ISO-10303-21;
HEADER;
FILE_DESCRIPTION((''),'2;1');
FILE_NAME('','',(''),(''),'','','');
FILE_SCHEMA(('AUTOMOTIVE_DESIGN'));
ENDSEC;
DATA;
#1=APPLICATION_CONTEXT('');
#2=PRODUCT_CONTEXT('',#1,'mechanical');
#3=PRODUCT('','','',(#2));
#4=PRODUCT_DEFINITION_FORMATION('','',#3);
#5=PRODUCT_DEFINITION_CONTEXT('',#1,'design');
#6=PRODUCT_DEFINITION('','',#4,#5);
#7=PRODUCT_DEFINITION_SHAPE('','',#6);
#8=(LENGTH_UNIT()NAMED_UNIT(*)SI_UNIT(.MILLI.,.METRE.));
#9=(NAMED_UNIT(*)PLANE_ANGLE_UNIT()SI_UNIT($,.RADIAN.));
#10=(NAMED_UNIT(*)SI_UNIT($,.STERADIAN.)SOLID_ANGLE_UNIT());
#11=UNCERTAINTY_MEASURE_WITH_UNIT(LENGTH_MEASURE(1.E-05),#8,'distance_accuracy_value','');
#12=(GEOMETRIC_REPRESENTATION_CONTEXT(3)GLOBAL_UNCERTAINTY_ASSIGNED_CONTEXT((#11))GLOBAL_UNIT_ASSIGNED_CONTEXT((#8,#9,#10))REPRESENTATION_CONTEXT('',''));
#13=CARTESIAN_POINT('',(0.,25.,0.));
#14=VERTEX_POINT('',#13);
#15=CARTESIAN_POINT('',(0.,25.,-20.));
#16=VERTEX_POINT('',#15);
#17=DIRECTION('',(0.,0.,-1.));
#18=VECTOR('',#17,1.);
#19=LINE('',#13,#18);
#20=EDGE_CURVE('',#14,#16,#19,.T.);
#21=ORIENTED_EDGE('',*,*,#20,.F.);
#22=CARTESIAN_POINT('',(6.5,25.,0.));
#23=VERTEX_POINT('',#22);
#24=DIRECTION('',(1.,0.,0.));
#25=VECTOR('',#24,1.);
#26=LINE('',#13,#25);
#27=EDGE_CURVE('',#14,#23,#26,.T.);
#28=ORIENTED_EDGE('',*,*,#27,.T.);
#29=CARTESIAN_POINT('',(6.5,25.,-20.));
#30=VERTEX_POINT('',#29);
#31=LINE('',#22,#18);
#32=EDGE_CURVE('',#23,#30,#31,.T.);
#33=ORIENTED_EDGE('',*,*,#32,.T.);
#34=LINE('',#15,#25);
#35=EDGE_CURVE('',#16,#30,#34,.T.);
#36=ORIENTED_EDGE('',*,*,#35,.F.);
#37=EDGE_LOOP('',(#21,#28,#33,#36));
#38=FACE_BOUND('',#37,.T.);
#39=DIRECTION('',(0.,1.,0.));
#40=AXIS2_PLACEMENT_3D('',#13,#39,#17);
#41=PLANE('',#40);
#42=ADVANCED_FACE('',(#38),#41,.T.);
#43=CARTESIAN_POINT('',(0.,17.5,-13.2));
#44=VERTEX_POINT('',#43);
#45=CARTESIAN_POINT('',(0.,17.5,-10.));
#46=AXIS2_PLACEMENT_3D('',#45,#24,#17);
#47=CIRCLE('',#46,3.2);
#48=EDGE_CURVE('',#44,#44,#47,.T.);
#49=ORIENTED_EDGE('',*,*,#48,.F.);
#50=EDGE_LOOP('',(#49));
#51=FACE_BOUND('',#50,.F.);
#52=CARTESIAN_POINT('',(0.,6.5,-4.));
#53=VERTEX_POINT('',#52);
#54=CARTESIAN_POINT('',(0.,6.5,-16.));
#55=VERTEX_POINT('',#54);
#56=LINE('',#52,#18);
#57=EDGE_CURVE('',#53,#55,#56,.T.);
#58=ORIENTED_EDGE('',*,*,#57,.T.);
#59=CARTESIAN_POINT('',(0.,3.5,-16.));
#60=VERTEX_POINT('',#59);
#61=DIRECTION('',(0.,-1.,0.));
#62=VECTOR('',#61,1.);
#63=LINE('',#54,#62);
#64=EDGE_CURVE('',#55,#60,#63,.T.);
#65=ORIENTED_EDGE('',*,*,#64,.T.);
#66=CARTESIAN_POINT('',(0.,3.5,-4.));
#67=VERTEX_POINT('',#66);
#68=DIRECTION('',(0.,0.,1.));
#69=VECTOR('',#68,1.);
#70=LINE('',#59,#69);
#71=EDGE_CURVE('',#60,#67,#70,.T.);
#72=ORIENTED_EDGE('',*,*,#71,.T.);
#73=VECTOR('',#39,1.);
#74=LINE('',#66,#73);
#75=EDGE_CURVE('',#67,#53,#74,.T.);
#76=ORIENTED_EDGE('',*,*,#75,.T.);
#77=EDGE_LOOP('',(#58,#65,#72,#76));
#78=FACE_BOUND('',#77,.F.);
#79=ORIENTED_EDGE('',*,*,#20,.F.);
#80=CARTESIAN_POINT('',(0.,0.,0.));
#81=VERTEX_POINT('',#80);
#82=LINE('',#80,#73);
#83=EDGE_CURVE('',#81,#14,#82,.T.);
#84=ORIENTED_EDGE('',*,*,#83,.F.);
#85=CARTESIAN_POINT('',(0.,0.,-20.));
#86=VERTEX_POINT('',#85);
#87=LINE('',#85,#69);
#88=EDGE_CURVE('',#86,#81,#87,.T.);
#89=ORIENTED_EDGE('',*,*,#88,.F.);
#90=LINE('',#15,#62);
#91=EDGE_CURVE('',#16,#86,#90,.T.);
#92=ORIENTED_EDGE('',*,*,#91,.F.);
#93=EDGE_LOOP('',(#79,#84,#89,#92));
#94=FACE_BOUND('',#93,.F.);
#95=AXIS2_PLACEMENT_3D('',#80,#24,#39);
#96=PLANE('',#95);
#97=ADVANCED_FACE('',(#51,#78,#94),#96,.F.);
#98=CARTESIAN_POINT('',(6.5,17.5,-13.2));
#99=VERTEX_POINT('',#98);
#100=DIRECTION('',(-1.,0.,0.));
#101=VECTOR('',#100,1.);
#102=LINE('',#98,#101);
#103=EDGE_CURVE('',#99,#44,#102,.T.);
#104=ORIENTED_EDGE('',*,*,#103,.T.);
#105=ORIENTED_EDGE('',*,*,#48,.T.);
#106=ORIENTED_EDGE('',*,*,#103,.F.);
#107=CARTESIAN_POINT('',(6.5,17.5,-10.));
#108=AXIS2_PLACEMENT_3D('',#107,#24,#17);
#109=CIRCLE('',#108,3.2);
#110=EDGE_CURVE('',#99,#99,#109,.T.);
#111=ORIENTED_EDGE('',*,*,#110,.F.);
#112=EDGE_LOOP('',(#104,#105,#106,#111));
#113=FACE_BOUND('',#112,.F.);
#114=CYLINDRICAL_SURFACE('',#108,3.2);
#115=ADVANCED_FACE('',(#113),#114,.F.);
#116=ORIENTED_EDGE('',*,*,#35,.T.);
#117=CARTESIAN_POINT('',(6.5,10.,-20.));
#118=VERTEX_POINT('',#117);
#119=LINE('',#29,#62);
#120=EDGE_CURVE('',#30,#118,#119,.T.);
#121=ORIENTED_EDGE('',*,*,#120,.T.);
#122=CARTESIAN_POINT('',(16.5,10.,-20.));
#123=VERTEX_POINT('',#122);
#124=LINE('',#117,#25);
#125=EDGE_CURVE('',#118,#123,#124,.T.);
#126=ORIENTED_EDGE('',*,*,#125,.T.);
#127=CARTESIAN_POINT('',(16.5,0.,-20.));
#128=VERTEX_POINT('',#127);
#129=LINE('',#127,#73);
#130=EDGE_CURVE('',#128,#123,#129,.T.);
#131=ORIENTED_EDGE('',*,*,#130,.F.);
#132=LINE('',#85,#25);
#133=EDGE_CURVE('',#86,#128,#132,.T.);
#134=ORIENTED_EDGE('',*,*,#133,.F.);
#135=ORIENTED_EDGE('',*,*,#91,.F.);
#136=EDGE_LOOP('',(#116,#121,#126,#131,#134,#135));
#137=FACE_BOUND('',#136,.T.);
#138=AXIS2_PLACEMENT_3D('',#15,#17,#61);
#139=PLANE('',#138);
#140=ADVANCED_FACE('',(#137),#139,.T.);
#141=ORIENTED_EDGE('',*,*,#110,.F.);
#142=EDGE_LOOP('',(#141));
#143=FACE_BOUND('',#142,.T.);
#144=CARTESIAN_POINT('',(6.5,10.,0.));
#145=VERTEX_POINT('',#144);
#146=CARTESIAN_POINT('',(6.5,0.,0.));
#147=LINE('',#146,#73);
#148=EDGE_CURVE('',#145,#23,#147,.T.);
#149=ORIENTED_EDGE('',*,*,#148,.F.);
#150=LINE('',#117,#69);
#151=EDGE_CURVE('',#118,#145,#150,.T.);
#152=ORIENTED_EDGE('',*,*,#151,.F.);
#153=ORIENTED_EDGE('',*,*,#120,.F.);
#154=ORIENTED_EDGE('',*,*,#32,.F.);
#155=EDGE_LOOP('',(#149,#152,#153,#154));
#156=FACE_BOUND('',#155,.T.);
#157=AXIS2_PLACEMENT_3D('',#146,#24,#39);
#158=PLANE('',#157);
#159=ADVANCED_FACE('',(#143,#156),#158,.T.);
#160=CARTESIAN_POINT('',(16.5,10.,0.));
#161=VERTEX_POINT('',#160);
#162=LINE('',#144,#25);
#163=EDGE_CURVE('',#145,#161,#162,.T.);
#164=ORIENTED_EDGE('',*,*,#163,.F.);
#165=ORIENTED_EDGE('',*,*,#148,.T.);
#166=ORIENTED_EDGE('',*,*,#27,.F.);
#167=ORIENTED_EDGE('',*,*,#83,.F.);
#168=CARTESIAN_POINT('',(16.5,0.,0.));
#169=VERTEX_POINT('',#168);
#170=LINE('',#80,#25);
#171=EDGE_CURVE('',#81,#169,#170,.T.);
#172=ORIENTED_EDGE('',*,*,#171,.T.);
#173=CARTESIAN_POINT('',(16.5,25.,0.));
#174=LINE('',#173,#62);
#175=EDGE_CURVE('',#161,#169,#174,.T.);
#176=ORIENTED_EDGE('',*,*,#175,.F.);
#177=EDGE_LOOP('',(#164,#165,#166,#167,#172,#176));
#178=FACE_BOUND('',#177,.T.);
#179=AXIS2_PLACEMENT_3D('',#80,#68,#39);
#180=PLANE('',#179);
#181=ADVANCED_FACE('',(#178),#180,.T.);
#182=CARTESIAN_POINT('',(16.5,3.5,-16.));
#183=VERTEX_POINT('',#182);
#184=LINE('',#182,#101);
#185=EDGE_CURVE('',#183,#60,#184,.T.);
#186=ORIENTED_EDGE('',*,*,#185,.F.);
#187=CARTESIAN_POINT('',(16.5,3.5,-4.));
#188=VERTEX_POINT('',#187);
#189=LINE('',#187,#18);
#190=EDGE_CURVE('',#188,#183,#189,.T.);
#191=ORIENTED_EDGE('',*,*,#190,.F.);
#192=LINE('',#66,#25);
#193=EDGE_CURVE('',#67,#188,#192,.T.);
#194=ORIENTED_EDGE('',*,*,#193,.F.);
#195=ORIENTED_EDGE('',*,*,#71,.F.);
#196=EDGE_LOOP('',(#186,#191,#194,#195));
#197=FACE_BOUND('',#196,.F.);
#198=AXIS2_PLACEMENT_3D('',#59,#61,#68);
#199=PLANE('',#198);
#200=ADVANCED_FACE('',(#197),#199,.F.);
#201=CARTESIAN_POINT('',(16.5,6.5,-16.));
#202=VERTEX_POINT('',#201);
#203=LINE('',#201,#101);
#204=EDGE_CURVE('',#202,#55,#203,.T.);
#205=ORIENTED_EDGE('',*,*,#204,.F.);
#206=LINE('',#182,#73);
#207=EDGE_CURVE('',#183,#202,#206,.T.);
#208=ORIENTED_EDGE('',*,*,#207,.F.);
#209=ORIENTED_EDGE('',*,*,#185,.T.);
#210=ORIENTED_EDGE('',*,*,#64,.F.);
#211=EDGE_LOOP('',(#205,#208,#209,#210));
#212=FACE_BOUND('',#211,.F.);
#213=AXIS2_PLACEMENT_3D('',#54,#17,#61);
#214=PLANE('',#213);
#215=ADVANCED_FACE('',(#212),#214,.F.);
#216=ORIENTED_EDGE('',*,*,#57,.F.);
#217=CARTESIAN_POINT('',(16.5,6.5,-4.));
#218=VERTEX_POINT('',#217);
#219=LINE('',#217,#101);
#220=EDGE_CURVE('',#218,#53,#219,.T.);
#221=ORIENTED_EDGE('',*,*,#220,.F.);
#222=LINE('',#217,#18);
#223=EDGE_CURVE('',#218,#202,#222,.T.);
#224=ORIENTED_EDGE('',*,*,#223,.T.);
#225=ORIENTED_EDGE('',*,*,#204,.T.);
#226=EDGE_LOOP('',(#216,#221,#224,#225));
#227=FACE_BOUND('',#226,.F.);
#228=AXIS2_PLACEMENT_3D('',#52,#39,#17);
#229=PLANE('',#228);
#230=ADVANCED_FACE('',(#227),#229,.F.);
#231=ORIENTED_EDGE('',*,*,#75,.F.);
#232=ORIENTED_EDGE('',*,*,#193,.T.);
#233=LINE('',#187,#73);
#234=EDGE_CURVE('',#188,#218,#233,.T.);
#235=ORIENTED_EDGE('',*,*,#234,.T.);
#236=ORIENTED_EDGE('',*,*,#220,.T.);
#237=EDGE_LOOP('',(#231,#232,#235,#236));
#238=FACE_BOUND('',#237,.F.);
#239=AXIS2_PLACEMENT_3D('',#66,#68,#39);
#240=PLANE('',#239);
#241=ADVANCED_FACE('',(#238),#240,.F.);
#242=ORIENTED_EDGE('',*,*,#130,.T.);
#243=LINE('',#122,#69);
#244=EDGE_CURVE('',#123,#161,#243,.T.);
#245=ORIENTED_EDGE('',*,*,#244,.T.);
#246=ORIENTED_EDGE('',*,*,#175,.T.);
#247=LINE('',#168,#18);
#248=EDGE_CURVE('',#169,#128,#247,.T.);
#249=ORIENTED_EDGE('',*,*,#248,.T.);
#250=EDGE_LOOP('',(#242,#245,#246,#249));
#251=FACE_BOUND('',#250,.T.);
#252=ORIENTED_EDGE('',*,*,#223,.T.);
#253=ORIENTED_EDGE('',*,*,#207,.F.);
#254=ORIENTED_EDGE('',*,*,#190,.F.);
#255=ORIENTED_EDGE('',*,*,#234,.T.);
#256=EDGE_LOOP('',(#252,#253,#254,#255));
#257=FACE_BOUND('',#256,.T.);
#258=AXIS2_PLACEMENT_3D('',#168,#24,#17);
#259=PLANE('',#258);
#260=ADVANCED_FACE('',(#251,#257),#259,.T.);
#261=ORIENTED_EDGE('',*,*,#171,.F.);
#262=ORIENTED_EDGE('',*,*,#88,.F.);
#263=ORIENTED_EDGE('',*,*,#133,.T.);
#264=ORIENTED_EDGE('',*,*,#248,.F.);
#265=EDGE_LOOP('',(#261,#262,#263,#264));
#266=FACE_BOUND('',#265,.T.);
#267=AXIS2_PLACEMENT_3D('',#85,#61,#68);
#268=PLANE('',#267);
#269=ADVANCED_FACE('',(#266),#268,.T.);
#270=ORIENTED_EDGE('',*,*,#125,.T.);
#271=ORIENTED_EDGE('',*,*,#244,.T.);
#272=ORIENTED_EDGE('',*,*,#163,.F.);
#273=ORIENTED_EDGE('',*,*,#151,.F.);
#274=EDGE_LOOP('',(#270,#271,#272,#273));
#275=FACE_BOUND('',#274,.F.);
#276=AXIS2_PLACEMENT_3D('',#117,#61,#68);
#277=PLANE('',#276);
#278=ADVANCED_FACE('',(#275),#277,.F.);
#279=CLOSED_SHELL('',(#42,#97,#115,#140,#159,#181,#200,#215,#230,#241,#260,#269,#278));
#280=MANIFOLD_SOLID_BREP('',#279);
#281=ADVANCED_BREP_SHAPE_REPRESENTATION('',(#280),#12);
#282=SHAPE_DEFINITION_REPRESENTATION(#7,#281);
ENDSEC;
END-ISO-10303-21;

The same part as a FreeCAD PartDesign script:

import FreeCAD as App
import Part
import Sketcher

doc = App.newDocument("Part")
body = doc.addObject("PartDesign::Body", "Body")

# Sketch on YZ plane
sketch1 = body.newObject("Sketcher::SketchObject", "Sketch")
sketch1.AttachmentSupport = (doc.getObject("YZ_Plane"), [""])
sketch1.MapMode = "FlatFace"
sketch1.addGeometry([
    Part.LineSegment(App.Vector(25, 0, 0), App.Vector(0, 0, 0)),  # 0
    Part.LineSegment(App.Vector(0, 0, 0), App.Vector(0, -20, 0)),  # 1
    Part.LineSegment(App.Vector(0, -20, 0), App.Vector(25, -20, 0)),  # 2
    Part.LineSegment(App.Vector(25, -20, 0), App.Vector(25, 0, 0)),  # 3
    Part.LineSegment(App.Vector(3.5, -16, 0), App.Vector(3.5, -4, 0)),  # 4
    Part.LineSegment(App.Vector(3.5, -4, 0), App.Vector(6.5, -4, 0)),  # 5
    Part.LineSegment(App.Vector(6.5, -4, 0), App.Vector(6.5, -16, 0)),  # 6
    Part.LineSegment(App.Vector(6.5, -16, 0), App.Vector(3.5, -16, 0)),  # 7
], False)
sketch1.addConstraint([
    Sketcher.Constraint("Coincident", 0, 2, 1, 1),
    Sketcher.Constraint("Coincident", 1, 2, 2, 1),
    Sketcher.Constraint("Coincident", 2, 2, 3, 1),
    Sketcher.Constraint("Coincident", 3, 2, 0, 1),
    Sketcher.Constraint("Coincident", 4, 2, 5, 1),
    Sketcher.Constraint("Coincident", 5, 2, 6, 1),
    Sketcher.Constraint("Coincident", 6, 2, 7, 1),
    Sketcher.Constraint("Coincident", 7, 2, 4, 1),
    Sketcher.Constraint("Horizontal", 0),
    Sketcher.Constraint("Vertical", 1),
    Sketcher.Constraint("Horizontal", 2),
    Sketcher.Constraint("Vertical", 3),
    Sketcher.Constraint("Vertical", 4),
    Sketcher.Constraint("Horizontal", 5),
    Sketcher.Constraint("Vertical", 6),
    Sketcher.Constraint("Horizontal", 7),
    Sketcher.Constraint("Coincident", 0, 2, -1, 1),
    Sketcher.Constraint("DistanceX", 0, 2, 0, 1, 25.0),
    Sketcher.Constraint("DistanceX", 5, 1, 5, 2, 3.0),
    Sketcher.Constraint("DistanceY", 1, 2, 1, 1, 20.0),
    Sketcher.Constraint("DistanceY", 4, 1, 4, 2, 12.0),
    Sketcher.Constraint("DistanceY", 4, 2, -1, 1, 4.0),
    Sketcher.Constraint("DistanceX", -1, 1, 4, 2, 3.5),
])
pad1 = body.newObject("PartDesign::Pad", "Pad")
pad1.Profile = sketch1
pad1.Length = 6.5

# Sketch on YZ plane
sketch2 = body.newObject("Sketcher::SketchObject", "Sketch001")
sketch2.AttachmentSupport = (doc.getObject("YZ_Plane"), [""])
sketch2.MapMode = "FlatFace"
sketch2.AttachmentOffset = App.Placement(App.Vector(0, 0, 6.5), App.Rotation())
sketch2.addGeometry([
    Part.LineSegment(App.Vector(10, -20, 0), App.Vector(10, 0, 0)),  # 0
    Part.LineSegment(App.Vector(10, 0, 0), App.Vector(0, 0, 0)),  # 1
    Part.LineSegment(App.Vector(0, 0, 0), App.Vector(0, -20, 0)),  # 2
    Part.LineSegment(App.Vector(0, -20, 0), App.Vector(10, -20, 0)),  # 3
    Part.LineSegment(App.Vector(3.5, -16, 0), App.Vector(3.5, -4, 0)),  # 4
    Part.LineSegment(App.Vector(3.5, -4, 0), App.Vector(6.5, -4, 0)),  # 5
    Part.LineSegment(App.Vector(6.5, -4, 0), App.Vector(6.5, -16, 0)),  # 6
    Part.LineSegment(App.Vector(6.5, -16, 0), App.Vector(3.5, -16, 0)),  # 7
], False)
sketch2.addConstraint([
    Sketcher.Constraint("Coincident", 0, 2, 1, 1),
    Sketcher.Constraint("Coincident", 1, 2, 2, 1),
    Sketcher.Constraint("Coincident", 2, 2, 3, 1),
    Sketcher.Constraint("Coincident", 3, 2, 0, 1),
    Sketcher.Constraint("Coincident", 4, 2, 5, 1),
    Sketcher.Constraint("Coincident", 5, 2, 6, 1),
    Sketcher.Constraint("Coincident", 6, 2, 7, 1),
    Sketcher.Constraint("Coincident", 7, 2, 4, 1),
    Sketcher.Constraint("Vertical", 0),
    Sketcher.Constraint("Horizontal", 1),
    Sketcher.Constraint("Vertical", 2),
    Sketcher.Constraint("Horizontal", 3),
    Sketcher.Constraint("Vertical", 4),
    Sketcher.Constraint("Horizontal", 5),
    Sketcher.Constraint("Vertical", 6),
    Sketcher.Constraint("Horizontal", 7),
    Sketcher.Constraint("Coincident", 1, 2, -1, 1),
    Sketcher.Constraint("DistanceX", 1, 2, 1, 1, 10.0),
    Sketcher.Constraint("DistanceX", 5, 1, 5, 2, 3.0),
    Sketcher.Constraint("DistanceY", 0, 1, 0, 2, 20.0),
    Sketcher.Constraint("DistanceY", 4, 1, 4, 2, 12.0),
    Sketcher.Constraint("DistanceY", 4, 2, -1, 1, 4.0),
    Sketcher.Constraint("DistanceX", -1, 1, 4, 2, 3.5),
])
pad2 = body.newObject("PartDesign::Pad", "Pad001")
pad2.Profile = sketch2
pad2.Length = 10

# Sketch on YZ plane
sketch3 = body.newObject("Sketcher::SketchObject", "Sketch002")
sketch3.AttachmentSupport = (doc.getObject("YZ_Plane"), [""])
sketch3.MapMode = "FlatFace"
sketch3.AttachmentOffset = App.Placement(App.Vector(0, 0, 6.5), App.Rotation())
sketch3.addGeometry(Part.Circle(App.Vector(17.5, -10, 0), App.Vector(0, 0, 1), 3.2), False)
sketch3.addConstraint([
    Sketcher.Constraint("Diameter", 0, 6.4),
    Sketcher.Constraint("DistanceY", 0, 3, -1, 1, 10.0),
    Sketcher.Constraint("DistanceX", -1, 1, 0, 3, 17.5),
])
pocket1 = body.newObject("PartDesign::Pocket", "Pocket")
pocket1.Profile = sketch3
pocket1.Length = 10

doc.recompute()
